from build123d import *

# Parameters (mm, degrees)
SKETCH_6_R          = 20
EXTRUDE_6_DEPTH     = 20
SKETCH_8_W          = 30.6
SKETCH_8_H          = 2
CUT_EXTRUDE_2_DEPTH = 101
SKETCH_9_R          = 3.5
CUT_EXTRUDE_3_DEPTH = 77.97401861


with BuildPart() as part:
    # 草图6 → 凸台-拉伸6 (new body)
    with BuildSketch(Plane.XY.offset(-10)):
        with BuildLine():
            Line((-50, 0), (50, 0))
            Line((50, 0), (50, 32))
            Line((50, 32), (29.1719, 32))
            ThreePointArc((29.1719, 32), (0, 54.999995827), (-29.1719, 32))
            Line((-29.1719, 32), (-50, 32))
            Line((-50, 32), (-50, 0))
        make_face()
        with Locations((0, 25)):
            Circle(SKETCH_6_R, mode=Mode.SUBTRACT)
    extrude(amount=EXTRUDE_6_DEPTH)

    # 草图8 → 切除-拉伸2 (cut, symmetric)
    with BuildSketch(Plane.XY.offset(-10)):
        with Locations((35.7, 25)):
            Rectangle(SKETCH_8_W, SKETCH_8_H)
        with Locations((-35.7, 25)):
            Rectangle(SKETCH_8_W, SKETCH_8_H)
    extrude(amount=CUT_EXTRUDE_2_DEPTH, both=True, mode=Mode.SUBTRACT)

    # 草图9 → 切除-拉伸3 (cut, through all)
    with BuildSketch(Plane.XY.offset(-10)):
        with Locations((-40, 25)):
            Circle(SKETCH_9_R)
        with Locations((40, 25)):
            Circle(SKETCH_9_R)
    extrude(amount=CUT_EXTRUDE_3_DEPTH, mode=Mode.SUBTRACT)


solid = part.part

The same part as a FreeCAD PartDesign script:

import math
import FreeCAD as App
import Part
import Sketcher
from FreeCAD import Vector
Q = App.Units.Quantity


def add_polygon(sketch, points):
    """Adds a closed chain of lines whose ends are joined by coincident constraints."""
    first, n = sketch.GeometryCount, len(points)
    for a, b in zip(points, points[1:] + points[:1]):
        sketch.addGeometry(Part.LineSegment(App.Vector(*a, 0), App.Vector(*b, 0)), False)
    for i in range(n):
        sketch.addConstraint(Sketcher.Constraint("Coincident", first + i, 2, first + (i + 1) % n, 1))

doc = App.newDocument("Part")
body = doc.addObject("PartDesign::Body", "Body")

# Sketch on XY plane
sketch1 = body.newObject("Sketcher::SketchObject", "Sketch")
sketch1.AttachmentSupport = (doc.getObject("XY_Plane"), [""])
sketch1.MapMode = "FlatFace"
sketch1.AttachmentOffset = App.Placement(Vector(0, 0, -10), App.Rotation())
sketch1.addGeometry([
    Part.LineSegment(Vector(-50, 0, 0), Vector(50, 0, 0)),  # 0
    Part.LineSegment(Vector(50, 0, 0), Vector(50, 32, 0)),  # 1
    Part.LineSegment(Vector(50, 32, 0), Vector(29, 32, 0)),  # 2
    Part.ArcOfCircle(Part.Circle(Vector(0, 25, 0), Vector(0, 0, 1), 30), math.radians(13), math.radians(167)),  # 3
    Part.LineSegment(Vector(-29, 32, 0), Vector(-50, 32, 0)),  # 4
    Part.LineSegment(Vector(-50, 32, 0), Vector(-50, 0, 0)),  # 5
    Part.Circle(Vector(0, 25, 0), Vector(0, 0, 1), 20),  # 6
], False)
sketch1.addConstraint([
    Sketcher.Constraint("Coincident", 0, 2, 1, 1),
    Sketcher.Constraint("Coincident", 1, 2, 2, 1),
    Sketcher.Constraint("Coincident", 2, 2, 3, 1),
    Sketcher.Constraint("Coincident", 3, 2, 4, 1),
    Sketcher.Constraint("Coincident", 4, 2, 5, 1),
    Sketcher.Constraint("Coincident", 5, 2, 0, 1),
    Sketcher.Constraint("Horizontal", 0),
    Sketcher.Constraint("Vertical", 1),
    Sketcher.Constraint("Horizontal", 2),
    Sketcher.Constraint("Horizontal", 4),
    Sketcher.Constraint("Vertical", 5),
    Sketcher.Constraint("Coincident", 6, 3, 3, 3),
    Sketcher.Constraint("Symmetric", 0, 2, 5, 2, -1, 1),
    Sketcher.Constraint("Symmetric", 2, 2, 3, 2, -2),
    Sketcher.Constraint("Diameter", 6, Q("40 mm")),
    Sketcher.Constraint("DistanceX", 0, 1, 0, 2, Q("100 mm")),
    Sketcher.Constraint("DistanceY", 1, 1, 1, 2, Q("32 mm")),
    Sketcher.Constraint("DistanceY", -1, 1, 3, 3, Q("25 mm")),
    Sketcher.Constraint("DistanceX", 2, 2, 2, 1, Q("20.8281 mm")),
])
pad1 = body.newObject("PartDesign::Pad", "Pad")
pad1.Profile = sketch1
pad1.Length = 20

# Sketch on XY plane
sketch2 = body.newObject("Sketcher::SketchObject", "Sketch001")
sketch2.AttachmentSupport = (doc.getObject("XY_Plane"), [""])
sketch2.MapMode = "FlatFace"
sketch2.AttachmentOffset = App.Placement(Vector(0, 0, -10), App.Rotation())
add_polygon(sketch2, [(20.4, 26), (20.4, 24), (51, 24), (51, 26)])  # lines 0-3
add_polygon(sketch2, [(-51, 26), (-51, 24), (-20.4, 24), (-20.4, 26)])  # lines 4-7
sketch2.addConstraint([
    Sketcher.Constraint("Vertical", 0),
    Sketcher.Constraint("Horizontal", 1),
    Sketcher.Constraint("Vertical", 2),
    Sketcher.Constraint("Horizontal", 3),
    Sketcher.Constraint("Vertical", 4),
    Sketcher.Constraint("Horizontal", 5),
    Sketcher.Constraint("Vertical", 6),
    Sketcher.Constraint("Horizontal", 7),
    Sketcher.Constraint("Symmetric", 1, 2, 4, 2, -2),
    Sketcher.Constraint("Symmetric", 3, 2, 6, 2, -2),
    Sketcher.Constraint("DistanceY", 0, 2, 0, 1, Q("2 mm")),
    Sketcher.Constraint("DistanceX", 1, 1, 1, 2, Q("30.6 mm")),
    Sketcher.Constraint("DistanceY", -1, 1, 0, 2, Q("24 mm")),
    Sketcher.Constraint("DistanceX", -1, 1, 1, 2, Q("51 mm")),
])
pocket1 = body.newObject("PartDesign::Pocket", "Pocket")
pocket1.Profile = sketch2
pocket1.Length = 202
pocket1.Midplane = True

# Sketch on XY plane
sketch3 = body.newObject("Sketcher::SketchObject", "Sketch002")
sketch3.AttachmentSupport = (doc.getObject("XY_Plane"), [""])
sketch3.MapMode = "FlatFace"
sketch3.AttachmentOffset = App.Placement(Vector(0, 0, -10), App.Rotation())
sketch3.addGeometry([
    Part.Circle(Vector(-40, 25, 0), Vector(0, 0, 1), 3.5),
    Part.Circle(Vector(40, 25, 0), Vector(0, 0, 1), 3.5),
], False)
sketch3.addConstraint([
    Sketcher.Constraint("Equal", 0, 1),
    Sketcher.Constraint("Symmetric", 0, 3, 1, 3, -2),
    Sketcher.Constraint("Diameter", 0, Q("7 mm")),
    Sketcher.Constraint("DistanceX", 0, 3, -1, 1, Q("40 mm")),
    Sketcher.Constraint("DistanceY", -1, 1, 0, 3, Q("25 mm")),
])
pocket2 = body.newObject("PartDesign::Pocket", "Pocket001")
pocket2.Profile = sketch3
pocket2.Type = "ThroughAll"
pocket2.Reversed = True

doc.recompute()
